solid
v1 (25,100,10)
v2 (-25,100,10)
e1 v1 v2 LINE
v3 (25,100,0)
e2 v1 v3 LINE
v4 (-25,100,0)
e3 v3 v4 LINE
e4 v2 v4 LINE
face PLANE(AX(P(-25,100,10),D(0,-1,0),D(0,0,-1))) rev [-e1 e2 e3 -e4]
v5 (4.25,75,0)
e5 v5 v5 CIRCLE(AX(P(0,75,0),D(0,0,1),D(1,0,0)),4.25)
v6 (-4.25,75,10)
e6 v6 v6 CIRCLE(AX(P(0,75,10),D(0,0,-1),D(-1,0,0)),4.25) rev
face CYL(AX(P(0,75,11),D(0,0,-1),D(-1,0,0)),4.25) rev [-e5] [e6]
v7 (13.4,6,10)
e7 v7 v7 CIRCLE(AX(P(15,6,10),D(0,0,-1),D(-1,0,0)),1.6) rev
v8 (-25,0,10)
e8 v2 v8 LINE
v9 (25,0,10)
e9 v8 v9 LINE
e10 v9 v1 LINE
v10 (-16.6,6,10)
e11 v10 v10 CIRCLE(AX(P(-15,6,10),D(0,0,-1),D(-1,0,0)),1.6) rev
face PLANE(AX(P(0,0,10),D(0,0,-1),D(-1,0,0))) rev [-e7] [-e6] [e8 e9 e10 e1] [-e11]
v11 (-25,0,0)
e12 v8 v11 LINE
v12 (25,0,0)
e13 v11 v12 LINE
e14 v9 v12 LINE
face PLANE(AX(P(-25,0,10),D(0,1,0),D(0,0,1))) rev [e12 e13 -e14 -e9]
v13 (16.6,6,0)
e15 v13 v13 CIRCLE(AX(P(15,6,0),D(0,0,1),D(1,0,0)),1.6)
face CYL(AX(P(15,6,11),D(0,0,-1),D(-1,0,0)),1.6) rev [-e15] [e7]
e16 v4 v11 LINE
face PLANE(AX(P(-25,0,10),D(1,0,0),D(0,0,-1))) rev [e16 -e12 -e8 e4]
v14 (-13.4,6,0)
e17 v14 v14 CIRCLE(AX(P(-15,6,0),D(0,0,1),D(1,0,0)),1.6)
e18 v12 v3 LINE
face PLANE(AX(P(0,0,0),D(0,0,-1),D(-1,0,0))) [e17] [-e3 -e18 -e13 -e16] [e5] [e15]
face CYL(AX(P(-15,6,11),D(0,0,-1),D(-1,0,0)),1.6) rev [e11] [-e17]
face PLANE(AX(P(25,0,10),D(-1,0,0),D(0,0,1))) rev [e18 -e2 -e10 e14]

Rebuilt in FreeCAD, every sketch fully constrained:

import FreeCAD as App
import Part
import Sketcher

doc = App.newDocument("Part")
body = doc.addObject("PartDesign::Body", "Body")

# Sketch on XY plane
sketch1 = body.newObject("Sketcher::SketchObject", "Sketch")
sketch1.AttachmentSupport = (doc.getObject("XY_Plane"), [""])
sketch1.MapMode = "FlatFace"
sketch1.addGeometry([
    Part.LineSegment(App.Vector(-25, 100, 0), App.Vector(-25, 0, 0)),
    Part.LineSegment(App.Vector(-25, 0, 0), App.Vector(25, 0, 0)),
    Part.LineSegment(App.Vector(25, 0, 0), App.Vector(25, 100, 0)),
    Part.LineSegment(App.Vector(25, 100, 0), App.Vector(-25, 100, 0)),
], False)
sketch1.addConstraint([
    Sketcher.Constraint("Coincident", 0, 2, 1, 1),
    Sketcher.Constraint("Coincident", 1, 2, 2, 1),
    Sketcher.Constraint("Coincident", 2, 2, 3, 1),
    Sketcher.Constraint("Coincident", 3, 2, 0, 1),
    Sketcher.Constraint("Vertical", 0),
    Sketcher.Constraint("Horizontal", 1),
    Sketcher.Constraint("Vertical", 2),
    Sketcher.Constraint("Horizontal", 3),
    Sketcher.Constraint("Symmetric", 0, 2, 1, 2, -1, 1),
    Sketcher.Constraint("DistanceX", 1, 1, 1, 2, 50.0),
    Sketcher.Constraint("DistanceY", 0, 2, 0, 1, 100.0),
])
pad1 = body.newObject("PartDesign::Pad", "Pad")
pad1.Profile = sketch1
pad1.Length = 10

# Sketch on XY plane
sketch2 = body.newObject("Sketcher::SketchObject", "Sketch001")
sketch2.AttachmentSupport = (doc.getObject("XY_Plane"), [""])
sketch2.MapMode = "FlatFace"
sketch2.addGeometry([
    Part.Circle(App.Vector(0, 75, 0), App.Vector(0, 0, 1), 4.2),
    Part.Circle(App.Vector(15, 6, 0), App.Vector(0, 0, 1), 1.6),
    Part.Circle(App.Vector(-15, 6, 0), App.Vector(0, 0, 1), 1.6),
], False)
sketch2.addConstraint([
    Sketcher.Constraint("Equal", 1, 2),
    Sketcher.Constraint("Symmetric", 1, 3, 2, 3, -2),
    Sketcher.Constraint("PointOnObject", 0, 3, -2),
    Sketcher.Constraint("Diameter", 0, 8.5),
    Sketcher.Constraint("Diameter", 1, 3.2),
    Sketcher.Constraint("DistanceY", -1, 1, 0, 3, 75.0),
    Sketcher.Constraint("DistanceX", -1, 1, 1, 3, 15.0),
    Sketcher.Constraint("DistanceY", -1, 1, 1, 3, 6.0),
])
pocket1 = body.newObject("PartDesign::Pocket", "Pocket")
pocket1.Profile = sketch2
pocket1.Length = 11
pocket1.Reversed = True

doc.recompute()
